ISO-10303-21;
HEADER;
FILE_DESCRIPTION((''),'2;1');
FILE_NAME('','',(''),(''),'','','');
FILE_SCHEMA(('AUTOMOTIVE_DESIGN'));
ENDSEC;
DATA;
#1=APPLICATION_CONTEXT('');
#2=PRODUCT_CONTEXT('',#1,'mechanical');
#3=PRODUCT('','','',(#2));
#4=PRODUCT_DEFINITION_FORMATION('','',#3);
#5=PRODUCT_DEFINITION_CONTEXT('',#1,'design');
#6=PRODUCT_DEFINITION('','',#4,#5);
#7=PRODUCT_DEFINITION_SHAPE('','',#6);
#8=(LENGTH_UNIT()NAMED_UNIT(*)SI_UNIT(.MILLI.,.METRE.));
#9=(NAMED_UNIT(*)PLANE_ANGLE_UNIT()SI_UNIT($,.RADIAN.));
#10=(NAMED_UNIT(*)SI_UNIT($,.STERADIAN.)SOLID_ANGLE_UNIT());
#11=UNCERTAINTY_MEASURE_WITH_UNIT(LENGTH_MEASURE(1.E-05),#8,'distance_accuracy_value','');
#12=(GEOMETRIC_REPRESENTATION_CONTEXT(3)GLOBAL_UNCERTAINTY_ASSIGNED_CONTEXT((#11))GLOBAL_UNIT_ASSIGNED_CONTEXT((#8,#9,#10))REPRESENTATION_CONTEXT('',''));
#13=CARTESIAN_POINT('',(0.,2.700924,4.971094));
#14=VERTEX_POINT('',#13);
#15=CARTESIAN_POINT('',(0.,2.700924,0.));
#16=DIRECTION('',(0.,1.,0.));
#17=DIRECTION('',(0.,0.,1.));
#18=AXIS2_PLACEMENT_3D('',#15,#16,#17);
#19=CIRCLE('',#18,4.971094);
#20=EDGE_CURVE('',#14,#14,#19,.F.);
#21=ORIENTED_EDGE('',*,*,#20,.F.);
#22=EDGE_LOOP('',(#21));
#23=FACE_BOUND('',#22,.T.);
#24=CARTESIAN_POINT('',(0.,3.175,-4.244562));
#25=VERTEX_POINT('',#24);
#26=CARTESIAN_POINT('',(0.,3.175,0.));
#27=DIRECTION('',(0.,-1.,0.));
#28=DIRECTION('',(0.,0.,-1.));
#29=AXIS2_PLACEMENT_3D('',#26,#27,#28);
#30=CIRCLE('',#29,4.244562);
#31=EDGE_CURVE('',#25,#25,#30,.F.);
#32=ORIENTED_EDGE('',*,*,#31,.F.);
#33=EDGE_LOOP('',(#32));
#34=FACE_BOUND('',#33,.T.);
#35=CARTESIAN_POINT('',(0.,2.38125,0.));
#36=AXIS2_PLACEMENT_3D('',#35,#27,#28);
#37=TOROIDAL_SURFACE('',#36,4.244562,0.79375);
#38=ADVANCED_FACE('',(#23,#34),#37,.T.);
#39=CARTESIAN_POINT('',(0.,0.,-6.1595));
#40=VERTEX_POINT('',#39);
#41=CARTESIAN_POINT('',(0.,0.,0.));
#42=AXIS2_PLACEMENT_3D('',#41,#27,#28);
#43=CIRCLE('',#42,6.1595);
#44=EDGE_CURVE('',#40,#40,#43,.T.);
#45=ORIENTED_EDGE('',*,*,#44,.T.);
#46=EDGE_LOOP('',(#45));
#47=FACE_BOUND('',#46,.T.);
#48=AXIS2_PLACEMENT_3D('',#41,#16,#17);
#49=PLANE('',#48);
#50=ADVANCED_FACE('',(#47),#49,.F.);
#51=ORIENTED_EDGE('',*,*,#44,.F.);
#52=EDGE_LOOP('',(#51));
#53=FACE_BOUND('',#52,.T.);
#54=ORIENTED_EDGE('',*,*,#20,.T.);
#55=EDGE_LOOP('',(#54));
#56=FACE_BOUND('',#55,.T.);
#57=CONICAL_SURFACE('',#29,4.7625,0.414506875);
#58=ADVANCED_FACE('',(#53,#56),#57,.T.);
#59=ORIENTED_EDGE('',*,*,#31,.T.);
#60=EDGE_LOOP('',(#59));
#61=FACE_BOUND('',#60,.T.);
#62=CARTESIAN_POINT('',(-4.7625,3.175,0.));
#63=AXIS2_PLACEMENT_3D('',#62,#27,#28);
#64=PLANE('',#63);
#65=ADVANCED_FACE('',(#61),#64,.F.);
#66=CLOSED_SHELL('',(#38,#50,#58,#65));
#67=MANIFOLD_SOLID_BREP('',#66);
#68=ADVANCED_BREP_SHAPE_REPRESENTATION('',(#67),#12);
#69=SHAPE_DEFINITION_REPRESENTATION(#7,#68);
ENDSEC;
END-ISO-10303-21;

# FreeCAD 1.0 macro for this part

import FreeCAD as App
import Part
import Sketcher
Q = App.Units.Quantity


def edges_at(feature, points):
    """Names of the edges that pass closest to the given points."""
    edges = feature.Shape.Edges
    near = lambda p: min(range(len(edges)), key=lambda i: edges[i].distToShape(Part.Vertex(*p))[0])
    return sorted({f"Edge{near(p) + 1}" for p in points})


def add_polygon(sketch, points):
    """Adds a closed chain of lines whose ends are joined by coincident constraints."""
    first, n = sketch.GeometryCount, len(points)
    for a, b in zip(points, points[1:] + points[:1]):
        sketch.addGeometry(Part.LineSegment(App.Vector(*a, 0), App.Vector(*b, 0)), False)
    for i in range(n):
        sketch.addConstraint(Sketcher.Constraint("Coincident", first + i, 2, first + (i + 1) % n, 1))

doc = App.newDocument("Part")
body = doc.addObject("PartDesign::Body", "Body")

sketch1 = body.newObject("Sketcher::SketchObject", "Sketch")
sketch1.AttachmentSupport = (doc.getObject("XY_Plane"), [""])
sketch1.MapMode = "FlatFace"
add_polygon(sketch1, [(-6.2, 0), (0, 0), (0, 3.2), (-4.8, 3.2)])
sketch1.addConstraint(Sketcher.Constraint("Horizontal", 0))
sketch1.addConstraint(Sketcher.Constraint("Vertical", 1))
sketch1.addConstraint(Sketcher.Constraint("Horizontal", 2))
sketch1.addConstraint(Sketcher.Constraint("Coincident", 0, 2, -1, 1))
sketch1.addConstraint(Sketcher.Constraint("DistanceX", 2, 2, 2, 1, Q("0.1875 in")))
sketch1.addConstraint(Sketcher.Constraint("DistanceY", 1, 1, 1, 2, Q("0.125 in")))
sketch1.addConstraint(Sketcher.Constraint("DistanceX", 0, 1, 0, 2, Q("0.2425 in")))
revolution = body.newObject("PartDesign::Revolution", "Revolution")
revolution.Profile = sketch1
revolution.ReferenceAxis = (sketch1, ["V_Axis"])
revolution.Angle = 360
doc.recompute()

fillet = body.newObject("PartDesign::Fillet", "Fillet")
fillet.Base = (revolution, edges_at(revolution, [(0, 3.175, 4.763)]))
fillet.Radius = Q("0.03125 in")

doc.recompute()
